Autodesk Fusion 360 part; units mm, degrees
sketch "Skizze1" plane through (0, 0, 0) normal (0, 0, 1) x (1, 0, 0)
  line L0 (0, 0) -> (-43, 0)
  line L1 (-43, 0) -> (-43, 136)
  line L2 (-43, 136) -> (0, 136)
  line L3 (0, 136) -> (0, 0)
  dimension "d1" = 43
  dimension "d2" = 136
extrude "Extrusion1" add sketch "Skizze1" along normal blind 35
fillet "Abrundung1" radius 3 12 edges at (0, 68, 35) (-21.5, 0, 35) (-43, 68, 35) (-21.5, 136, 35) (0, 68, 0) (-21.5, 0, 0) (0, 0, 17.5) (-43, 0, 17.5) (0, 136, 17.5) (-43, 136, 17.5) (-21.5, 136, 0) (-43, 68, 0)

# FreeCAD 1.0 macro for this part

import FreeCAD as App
import Part
import Sketcher
from FreeCAD import Vector
Q = App.Units.Quantity


def add_polygon(sketch, points):
    """Adds a closed chain of lines whose ends are joined by coincident constraints."""
    first, n = sketch.GeometryCount, len(points)
    for a, b in zip(points, points[1:] + points[:1]):
        sketch.addGeometry(Part.LineSegment(App.Vector(*a, 0), App.Vector(*b, 0)), False)
    for i in range(n):
        sketch.addConstraint(Sketcher.Constraint("Coincident", first + i, 2, first + (i + 1) % n, 1))

doc = App.newDocument("Part")
params = doc.addObject("Spreadsheet::Sheet", "Params")
for row, (alias, value) in enumerate([
    ("sketch1_width", "43 mm"),
    ("sketch1_height", "136 mm"),
    ("pad1_length", "35 mm"),
    ("fillet_radius", "3 mm"),
], start=1):
    params.set(f"A{row}", alias)
    params.set(f"B{row}", "=" + value)
    params.setAlias(f"B{row}", alias)

body = doc.addObject("PartDesign::Body", "Body")

sketch1 = body.newObject("Sketcher::SketchObject", "Sketch")
sketch1.AttachmentSupport = (doc.getObject("XY_Plane"), [""])
sketch1.MapMode = "FlatFace"
add_polygon(sketch1, [(-43, 0), (0, 0), (0, 136), (-43, 136)])
sketch1.addConstraint(Sketcher.Constraint("Horizontal", 0))
sketch1.addConstraint(Sketcher.Constraint("Vertical", 1))
sketch1.addConstraint(Sketcher.Constraint("Horizontal", 2))
sketch1.addConstraint(Sketcher.Constraint("Vertical", 3))
sketch1.addConstraint(Sketcher.Constraint("Coincident", 0, 2, -1, 1))
sketch1.addConstraint(Sketcher.Constraint("DistanceX", 0, 1, 0, 2, Q("43 mm")))
sketch1.addConstraint(Sketcher.Constraint("DistanceY", 1, 1, 1, 2, Q("136 mm")))
sketch1.setExpression("Constraints[9]", "Params.sketch1_width")
sketch1.setExpression("Constraints[10]", "Params.sketch1_height")
pad1 = body.newObject("PartDesign::Pad", "Pad")
pad1.Profile = sketch1
pad1.setExpression("Length", "Params.pad1_length")
doc.recompute()

fillet = body.newObject("PartDesign::Fillet", "Fillet")
fillet.Base = (pad1, ["Edge1"])
fillet.UseAllEdges = True
fillet.setExpression("Radius", "Params.fillet_radius")

doc.recompute()
